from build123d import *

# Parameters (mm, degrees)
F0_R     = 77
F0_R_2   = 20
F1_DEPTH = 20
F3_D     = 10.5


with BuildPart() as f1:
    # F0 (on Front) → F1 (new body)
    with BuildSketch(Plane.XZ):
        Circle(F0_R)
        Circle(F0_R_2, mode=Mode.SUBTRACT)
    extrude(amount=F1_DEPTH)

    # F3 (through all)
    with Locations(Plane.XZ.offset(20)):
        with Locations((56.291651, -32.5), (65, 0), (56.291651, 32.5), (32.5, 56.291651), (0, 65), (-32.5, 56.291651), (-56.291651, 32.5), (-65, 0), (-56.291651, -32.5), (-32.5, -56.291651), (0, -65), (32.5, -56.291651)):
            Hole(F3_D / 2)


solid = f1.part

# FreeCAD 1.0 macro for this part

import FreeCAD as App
import Part
import Sketcher

V = App.Vector
Q = App.Units.Quantity

doc = App.newDocument("Part")
body = doc.addObject("PartDesign::Body", "Body")

# Sketch on XZ plane
sketch1 = body.newObject("Sketcher::SketchObject", "Sketch")
sketch1.AttachmentSupport = (doc.getObject("XZ_Plane"), [""])
sketch1.MapMode = "FlatFace"
sketch1.addGeometry(Part.Circle(V(0, 0, 0), V(0, 0, 1), 77), False)
sketch1.addGeometry(Part.Circle(V(0, 0, 0), V(0, 0, 1), 20), False)
sketch1.addConstraint(Sketcher.Constraint("Coincident", 0, 3, -1, 1))
sketch1.addConstraint(Sketcher.Constraint("Coincident", 1, 3, -1, 1))
sketch1.addConstraint(Sketcher.Constraint("Diameter", 0, Q("154 mm")))
sketch1.addConstraint(Sketcher.Constraint("Diameter", 1, Q("40 mm")))
pad1 = body.newObject("PartDesign::Pad", "Pad")
pad1.Profile = sketch1
pad1.Length = 20

# Sketch on XZ plane
sketch2 = body.newObject("Sketcher::SketchObject", "Sketch001")
sketch2.AttachmentSupport = (doc.getObject("XZ_Plane"), [""])
sketch2.MapMode = "FlatFace"
sketch2.AttachmentOffset = App.Placement(V(0, 0, 20), App.Rotation())
sketch2.addGeometry(Part.Circle(V(56, -32, 0), V(0, 0, 1), 5), False)
sketch2.addGeometry(Part.Circle(V(65, 0, 0), V(0, 0, 1), 5), False)
sketch2.addGeometry(Part.Circle(V(56, 32, 0), V(0, 0, 1), 5), False)
sketch2.addGeometry(Part.Circle(V(32, 56, 0), V(0, 0, 1), 5), False)
sketch2.addGeometry(Part.Circle(V(0, 65, 0), V(0, 0, 1), 5), False)
sketch2.addGeometry(Part.Circle(V(-32, 56, 0), V(0, 0, 1), 5), False)
sketch2.addGeometry(Part.Circle(V(-56, 32, 0), V(0, 0, 1), 5), False)
sketch2.addGeometry(Part.Circle(V(-65, 0, 0), V(0, 0, 1), 5), False)
sketch2.addGeometry(Part.Circle(V(-56, -32, 0), V(0, 0, 1), 5), False)
sketch2.addGeometry(Part.Circle(V(-32, -56, 0), V(0, 0, 1), 5), False)
sketch2.addGeometry(Part.Circle(V(0, -65, 0), V(0, 0, 1), 5), False)
sketch2.addGeometry(Part.Circle(V(32, -56, 0), V(0, 0, 1), 5), False)
sketch2.addConstraint(Sketcher.Constraint("Equal", 0, 1))
sketch2.addConstraint(Sketcher.Constraint("Equal", 1, 2))
sketch2.addConstraint(Sketcher.Constraint("Equal", 2, 3))
sketch2.addConstraint(Sketcher.Constraint("Equal", 3, 4))
sketch2.addConstraint(Sketcher.Constraint("Equal", 4, 5))
sketch2.addConstraint(Sketcher.Constraint("Equal", 5, 6))
sketch2.addConstraint(Sketcher.Constraint("Equal", 6, 7))
sketch2.addConstraint(Sketcher.Constraint("Equal", 7, 8))
sketch2.addConstraint(Sketcher.Constraint("Equal", 8, 9))
sketch2.addConstraint(Sketcher.Constraint("Equal", 9, 10))
sketch2.addConstraint(Sketcher.Constraint("Equal", 10, 11))
sketch2.addConstraint(Sketcher.Constraint("Symmetric", 0, 3, 6, 3, -1, 1))
sketch2.addConstraint(Sketcher.Constraint("Symmetric", 1, 3, 7, 3, -1, 1))
sketch2.addConstraint(Sketcher.Constraint("Symmetric", 2, 3, 8, 3, -1, 1))
sketch2.addConstraint(Sketcher.Constraint("Symmetric", 3, 3, 9, 3, -1, 1))
sketch2.addConstraint(Sketcher.Constraint("Symmetric", 4, 3, 10, 3, -1, 1))
sketch2.addConstraint(Sketcher.Constraint("Symmetric", 5, 3, 11, 3, -1, 1))
sketch2.addConstraint(Sketcher.Constraint("Symmetric", 3, 3, 5, 3, -2))
sketch2.addConstraint(Sketcher.Constraint("Symmetric", 2, 3, 6, 3, -2))
sketch2.addConstraint(Sketcher.Constraint("PointOnObject", 1, 3, -1))
sketch2.addConstraint(Sketcher.Constraint("PointOnObject", 4, 3, -2))
sketch2.addConstraint(Sketcher.Constraint("Diameter", 0, Q("10.5 mm")))
sketch2.addConstraint(Sketcher.Constraint("DistanceX", -1, 1, 1, 3, Q("65 mm")))
sketch2.addConstraint(Sketcher.Constraint("DistanceY", -1, 1, 4, 3, Q("65 mm")))
sketch2.addConstraint(Sketcher.Constraint("DistanceY", 0, 3, 2, 3, Q("65 mm")))
sketch2.addConstraint(Sketcher.Constraint("DistanceX", 5, 3, 3, 3, Q("65 mm")))
sketch2.addConstraint(Sketcher.Constraint("DistanceX", -1, 1, 0, 3, Q("56.291651 mm")))
sketch2.addConstraint(Sketcher.Constraint("DistanceY", -1, 1, 3, 3, Q("56.291651 mm")))
doc.recompute()
hole = body.newObject("PartDesign::Hole", "Hole")
hole.Profile = sketch2
hole.ThreadType = "None"
hole.Diameter = 10.5
hole.DepthType = "ThroughAll"

doc.recompute()
